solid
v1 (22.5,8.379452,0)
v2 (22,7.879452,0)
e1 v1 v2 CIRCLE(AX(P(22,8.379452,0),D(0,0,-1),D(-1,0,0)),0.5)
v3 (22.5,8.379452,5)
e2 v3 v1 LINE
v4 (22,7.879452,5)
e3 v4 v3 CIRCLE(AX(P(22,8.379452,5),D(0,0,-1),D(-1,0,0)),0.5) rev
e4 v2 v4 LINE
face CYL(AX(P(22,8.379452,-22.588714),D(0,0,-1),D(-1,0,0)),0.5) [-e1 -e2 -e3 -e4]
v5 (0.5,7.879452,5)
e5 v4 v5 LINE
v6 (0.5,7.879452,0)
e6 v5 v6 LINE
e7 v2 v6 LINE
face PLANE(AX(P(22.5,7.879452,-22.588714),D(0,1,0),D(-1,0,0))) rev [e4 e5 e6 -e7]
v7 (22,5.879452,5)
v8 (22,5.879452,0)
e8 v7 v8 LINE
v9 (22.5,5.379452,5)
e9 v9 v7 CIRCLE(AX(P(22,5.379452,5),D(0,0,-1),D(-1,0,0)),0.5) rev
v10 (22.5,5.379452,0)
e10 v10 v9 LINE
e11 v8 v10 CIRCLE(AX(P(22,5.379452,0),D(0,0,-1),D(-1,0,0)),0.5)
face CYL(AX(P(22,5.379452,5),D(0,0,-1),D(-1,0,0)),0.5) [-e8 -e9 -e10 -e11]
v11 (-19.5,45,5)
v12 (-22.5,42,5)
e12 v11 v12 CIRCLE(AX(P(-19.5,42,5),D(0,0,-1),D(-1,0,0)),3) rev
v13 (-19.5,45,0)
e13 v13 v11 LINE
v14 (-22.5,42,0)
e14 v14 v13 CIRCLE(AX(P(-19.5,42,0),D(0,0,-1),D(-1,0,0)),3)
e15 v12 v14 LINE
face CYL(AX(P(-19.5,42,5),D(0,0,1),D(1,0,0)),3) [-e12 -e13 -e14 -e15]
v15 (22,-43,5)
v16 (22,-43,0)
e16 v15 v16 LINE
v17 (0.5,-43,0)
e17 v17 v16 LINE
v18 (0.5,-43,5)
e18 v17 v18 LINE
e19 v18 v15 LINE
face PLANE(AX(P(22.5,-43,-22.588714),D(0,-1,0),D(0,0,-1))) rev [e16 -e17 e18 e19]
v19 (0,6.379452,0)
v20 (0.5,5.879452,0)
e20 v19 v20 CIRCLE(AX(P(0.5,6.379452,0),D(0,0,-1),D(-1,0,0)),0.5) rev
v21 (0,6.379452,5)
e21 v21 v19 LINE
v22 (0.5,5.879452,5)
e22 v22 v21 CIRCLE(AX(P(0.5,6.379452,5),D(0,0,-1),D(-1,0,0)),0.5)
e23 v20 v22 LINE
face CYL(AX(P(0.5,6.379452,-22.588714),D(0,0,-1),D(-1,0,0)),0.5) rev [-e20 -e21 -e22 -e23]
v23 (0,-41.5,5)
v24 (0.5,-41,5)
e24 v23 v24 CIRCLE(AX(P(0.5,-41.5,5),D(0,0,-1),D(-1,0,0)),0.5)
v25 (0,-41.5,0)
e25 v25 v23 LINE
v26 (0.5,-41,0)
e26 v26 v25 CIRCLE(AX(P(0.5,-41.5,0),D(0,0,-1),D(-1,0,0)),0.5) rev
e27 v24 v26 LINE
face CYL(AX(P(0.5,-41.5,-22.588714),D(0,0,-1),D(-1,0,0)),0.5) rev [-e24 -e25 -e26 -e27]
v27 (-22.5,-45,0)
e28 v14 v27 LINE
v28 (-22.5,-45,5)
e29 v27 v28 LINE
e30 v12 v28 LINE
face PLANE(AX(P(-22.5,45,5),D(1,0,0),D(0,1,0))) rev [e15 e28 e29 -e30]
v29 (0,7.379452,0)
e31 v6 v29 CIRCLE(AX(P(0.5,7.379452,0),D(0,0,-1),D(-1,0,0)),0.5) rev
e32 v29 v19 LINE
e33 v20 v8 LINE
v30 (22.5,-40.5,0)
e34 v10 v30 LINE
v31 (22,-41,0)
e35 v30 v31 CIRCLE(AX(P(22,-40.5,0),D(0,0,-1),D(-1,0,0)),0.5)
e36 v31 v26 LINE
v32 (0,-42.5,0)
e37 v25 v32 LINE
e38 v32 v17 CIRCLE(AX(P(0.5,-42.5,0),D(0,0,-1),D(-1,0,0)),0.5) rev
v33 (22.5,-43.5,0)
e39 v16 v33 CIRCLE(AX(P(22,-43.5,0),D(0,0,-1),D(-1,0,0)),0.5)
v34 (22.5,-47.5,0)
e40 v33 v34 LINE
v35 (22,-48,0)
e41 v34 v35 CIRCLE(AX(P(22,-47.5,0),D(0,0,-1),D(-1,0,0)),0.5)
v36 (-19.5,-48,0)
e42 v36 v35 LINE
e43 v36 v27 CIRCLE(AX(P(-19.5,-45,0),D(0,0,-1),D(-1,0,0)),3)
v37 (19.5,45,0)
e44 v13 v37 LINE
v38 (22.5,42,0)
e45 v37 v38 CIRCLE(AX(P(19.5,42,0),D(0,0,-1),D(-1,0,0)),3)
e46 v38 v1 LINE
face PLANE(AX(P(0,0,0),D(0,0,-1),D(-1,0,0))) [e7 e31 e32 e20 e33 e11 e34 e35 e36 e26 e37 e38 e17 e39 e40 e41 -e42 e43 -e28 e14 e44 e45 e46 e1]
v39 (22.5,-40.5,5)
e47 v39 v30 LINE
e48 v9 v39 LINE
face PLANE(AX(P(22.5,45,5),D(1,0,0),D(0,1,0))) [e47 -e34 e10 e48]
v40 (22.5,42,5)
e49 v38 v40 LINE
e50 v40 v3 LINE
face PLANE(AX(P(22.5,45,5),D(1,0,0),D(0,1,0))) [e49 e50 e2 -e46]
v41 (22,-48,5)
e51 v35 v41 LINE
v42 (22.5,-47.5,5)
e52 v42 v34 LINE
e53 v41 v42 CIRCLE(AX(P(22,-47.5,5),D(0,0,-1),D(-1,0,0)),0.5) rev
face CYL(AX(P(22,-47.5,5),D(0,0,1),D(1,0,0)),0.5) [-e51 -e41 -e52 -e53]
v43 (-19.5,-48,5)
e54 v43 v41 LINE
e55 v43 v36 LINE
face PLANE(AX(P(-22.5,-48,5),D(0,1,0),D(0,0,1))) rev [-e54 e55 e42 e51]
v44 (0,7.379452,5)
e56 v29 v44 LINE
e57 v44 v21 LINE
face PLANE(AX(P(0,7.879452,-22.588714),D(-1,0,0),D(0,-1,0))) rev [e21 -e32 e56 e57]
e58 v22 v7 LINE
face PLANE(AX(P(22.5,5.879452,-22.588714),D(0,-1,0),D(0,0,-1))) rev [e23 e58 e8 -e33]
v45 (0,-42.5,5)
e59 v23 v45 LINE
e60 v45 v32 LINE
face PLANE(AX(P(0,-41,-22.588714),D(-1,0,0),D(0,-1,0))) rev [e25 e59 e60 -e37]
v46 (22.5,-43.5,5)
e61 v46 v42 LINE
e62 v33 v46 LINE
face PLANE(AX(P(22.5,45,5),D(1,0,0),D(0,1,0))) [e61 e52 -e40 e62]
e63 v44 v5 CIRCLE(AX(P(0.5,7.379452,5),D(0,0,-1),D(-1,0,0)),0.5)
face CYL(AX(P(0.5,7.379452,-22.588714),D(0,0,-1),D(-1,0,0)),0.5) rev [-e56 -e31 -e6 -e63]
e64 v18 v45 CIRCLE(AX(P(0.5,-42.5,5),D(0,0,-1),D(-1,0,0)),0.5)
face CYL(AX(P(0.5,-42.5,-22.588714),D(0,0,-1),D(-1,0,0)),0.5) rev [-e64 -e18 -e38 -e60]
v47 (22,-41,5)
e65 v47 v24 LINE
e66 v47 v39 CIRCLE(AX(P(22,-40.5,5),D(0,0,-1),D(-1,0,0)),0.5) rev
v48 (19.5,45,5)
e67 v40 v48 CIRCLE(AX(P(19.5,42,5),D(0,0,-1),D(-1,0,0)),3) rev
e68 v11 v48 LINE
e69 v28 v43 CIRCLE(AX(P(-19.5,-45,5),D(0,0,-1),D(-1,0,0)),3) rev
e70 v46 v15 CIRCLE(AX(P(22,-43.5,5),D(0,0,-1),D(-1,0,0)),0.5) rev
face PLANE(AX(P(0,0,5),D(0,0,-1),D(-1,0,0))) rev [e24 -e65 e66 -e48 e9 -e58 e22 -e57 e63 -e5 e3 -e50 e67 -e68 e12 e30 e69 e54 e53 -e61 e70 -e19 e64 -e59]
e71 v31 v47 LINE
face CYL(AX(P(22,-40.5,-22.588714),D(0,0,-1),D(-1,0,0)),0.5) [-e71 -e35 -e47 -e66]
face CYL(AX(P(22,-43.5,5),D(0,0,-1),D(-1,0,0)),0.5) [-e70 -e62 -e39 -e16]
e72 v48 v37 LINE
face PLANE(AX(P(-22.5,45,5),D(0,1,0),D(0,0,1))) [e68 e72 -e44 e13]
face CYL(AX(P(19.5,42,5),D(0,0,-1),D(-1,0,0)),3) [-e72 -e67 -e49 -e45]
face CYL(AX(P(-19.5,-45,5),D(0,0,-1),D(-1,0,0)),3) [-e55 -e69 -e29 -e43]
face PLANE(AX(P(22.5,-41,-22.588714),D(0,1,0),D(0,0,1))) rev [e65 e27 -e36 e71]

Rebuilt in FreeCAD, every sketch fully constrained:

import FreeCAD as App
import Part
import Sketcher
from FreeCAD import Vector


def edges_at(feature, points):
    """Names of the edges that pass closest to the given points."""
    edges = feature.Shape.Edges
    near = lambda p: min(range(len(edges)), key=lambda i: edges[i].distToShape(Part.Vertex(*p))[0])
    return sorted({f"Edge{near(p) + 1}" for p in points})

doc = App.newDocument("Part")
body = doc.addObject("PartDesign::Body", "Body")

sketch1 = body.newObject("Sketcher::SketchObject", "Sketch")
sketch1.AttachmentSupport = (doc.getObject("XY_Plane"), [""])
sketch1.MapMode = "FlatFace"
sketch1.addGeometry([
    Part.LineSegment(Vector(-22, 45, 0), Vector(-22, -48, 0)),
    Part.LineSegment(Vector(-22, -48, 0), Vector(22, -48, 0)),
    Part.LineSegment(Vector(22, -48, 0), Vector(22, 45, 0)),
    Part.LineSegment(Vector(22, 45, 0), Vector(-22, 45, 0)),
], False)
sketch1.addConstraint([
    Sketcher.Constraint("Coincident", 0, 2, 1, 1),
    Sketcher.Constraint("Coincident", 1, 2, 2, 1),
    Sketcher.Constraint("Coincident", 2, 2, 3, 1),
    Sketcher.Constraint("Coincident", 3, 2, 0, 1),
    Sketcher.Constraint("Vertical", 0),
    Sketcher.Constraint("Horizontal", 1),
    Sketcher.Constraint("Vertical", 2),
    Sketcher.Constraint("Horizontal", 3),
    Sketcher.Constraint("DistanceX", 1, 1, 1, 2, 45.0),
    Sketcher.Constraint("DistanceY", 0, 2, 0, 1, 93.0),
    Sketcher.Constraint("DistanceY", 0, 2, -1, 1, 48.0),
    Sketcher.Constraint("DistanceX", 0, 2, -1, 1, 22.5),
])
pad1 = body.newObject("PartDesign::Pad", "Pad")
pad1.Profile = sketch1
pad1.Length = 5

sketch2 = body.newObject("Sketcher::SketchObject", "Sketch001")
sketch2.AttachmentSupport = (doc.getObject("XY_Plane"), [""])
sketch2.MapMode = "FlatFace"
sketch2.AttachmentOffset = App.Placement(Vector(0, 0, 5), App.Rotation())
sketch2.addGeometry([
    Part.LineSegment(Vector(0, 7.9, 0), Vector(0, 5.9, 0)),
    Part.LineSegment(Vector(0, 5.9, 0), Vector(22.5, 5.9, 0)),
    Part.LineSegment(Vector(22.5, 5.9, 0), Vector(22.5, 7.9, 0)),
    Part.LineSegment(Vector(22.5, 7.9, 0), Vector(0, 7.9, 0)),
], False)
sketch2.addConstraint([
    Sketcher.Constraint("Coincident", 0, 2, 1, 1),
    Sketcher.Constraint("Coincident", 1, 2, 2, 1),
    Sketcher.Constraint("Coincident", 2, 2, 3, 1),
    Sketcher.Constraint("Coincident", 3, 2, 0, 1),
    Sketcher.Constraint("Vertical", 0),
    Sketcher.Constraint("Horizontal", 1),
    Sketcher.Constraint("Vertical", 2),
    Sketcher.Constraint("Horizontal", 3),
    Sketcher.Constraint("PointOnObject", 0, 2, -2),
    Sketcher.Constraint("DistanceY", 0, 2, 0, 1, 2.0),
    Sketcher.Constraint("DistanceX", 1, 1, 1, 2, 22.5),
    Sketcher.Constraint("DistanceY", -1, 1, 0, 2, 5.879452),
])
pocket1 = body.newObject("PartDesign::Pocket", "Pocket")
pocket1.Profile = sketch2
pocket1.Length = 5

sketch3 = body.newObject("Sketcher::SketchObject", "Sketch002")
sketch3.AttachmentSupport = (doc.getObject("XY_Plane"), [""])
sketch3.MapMode = "FlatFace"
sketch3.AttachmentOffset = App.Placement(Vector(0, 0, 5), App.Rotation())
sketch3.addGeometry([
    Part.LineSegment(Vector(0, -41, 0), Vector(0, -43, 0)),
    Part.LineSegment(Vector(0, -43, 0), Vector(22.5, -43, 0)),
    Part.LineSegment(Vector(22.5, -43, 0), Vector(22.5, -41, 0)),
    Part.LineSegment(Vector(22.5, -41, 0), Vector(0, -41, 0)),
], False)
sketch3.addConstraint([
    Sketcher.Constraint("Coincident", 0, 2, 1, 1),
    Sketcher.Constraint("Coincident", 1, 2, 2, 1),
    Sketcher.Constraint("Coincident", 2, 2, 3, 1),
    Sketcher.Constraint("Coincident", 3, 2, 0, 1),
    Sketcher.Constraint("Vertical", 0),
    Sketcher.Constraint("Horizontal", 1),
    Sketcher.Constraint("Vertical", 2),
    Sketcher.Constraint("Horizontal", 3),
    Sketcher.Constraint("PointOnObject", 0, 2, -2),
    Sketcher.Constraint("DistanceY", 0, 2, 0, 1, 2.0),
    Sketcher.Constraint("DistanceX", 1, 1, 1, 2, 22.5),
    Sketcher.Constraint("DistanceY", 0, 2, -1, 1, 43.0),
])
pocket2 = body.newObject("PartDesign::Pocket", "Pocket001")
pocket2.Profile = sketch3
pocket2.Length = 5
doc.recompute()

fillet = body.newObject("PartDesign::Fillet", "Fillet")
fillet.Base = (pocket2, edges_at(pocket2, [(-22.5, 45, 2.5), (-22.5, -48, 2.5), (22.5, 45, 2.5)]))
fillet.Radius = 3
doc.recompute()

fillet2 = body.newObject("PartDesign::Fillet", "Fillet001")
fillet2.Base = (fillet, edges_at(fillet, [
    (0, 7.879, 2.5),
    (0, 5.879, 2.5),
    (22.5, 5.879, 2.5),
    (22.5, 7.879, 2.5),
    (0, -41, 2.5),
    (0, -43, 2.5),
    (22.5, -43, 2.5),
    (22.5, -41, 2.5),
    (22.5, -48, 2.5),
]))
fillet2.Radius = 0.5

doc.recompute()
